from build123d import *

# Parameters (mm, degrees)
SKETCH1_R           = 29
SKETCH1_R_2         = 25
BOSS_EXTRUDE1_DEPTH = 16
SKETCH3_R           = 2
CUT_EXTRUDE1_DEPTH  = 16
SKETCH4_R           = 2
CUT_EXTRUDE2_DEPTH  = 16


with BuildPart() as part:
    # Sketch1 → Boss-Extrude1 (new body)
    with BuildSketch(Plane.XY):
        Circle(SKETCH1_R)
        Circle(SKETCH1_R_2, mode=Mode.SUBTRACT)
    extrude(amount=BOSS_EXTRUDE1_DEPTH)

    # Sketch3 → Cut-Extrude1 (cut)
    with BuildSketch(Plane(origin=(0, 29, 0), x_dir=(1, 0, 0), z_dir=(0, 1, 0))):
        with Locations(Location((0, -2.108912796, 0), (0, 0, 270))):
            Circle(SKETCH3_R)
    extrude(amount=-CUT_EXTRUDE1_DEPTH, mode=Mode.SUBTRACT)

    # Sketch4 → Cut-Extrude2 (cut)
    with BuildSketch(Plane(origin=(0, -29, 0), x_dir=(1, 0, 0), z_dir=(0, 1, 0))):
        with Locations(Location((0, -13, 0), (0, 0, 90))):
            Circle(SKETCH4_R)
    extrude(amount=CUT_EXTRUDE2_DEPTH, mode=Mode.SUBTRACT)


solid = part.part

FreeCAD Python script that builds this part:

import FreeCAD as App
import Part
import Sketcher

V = App.Vector
Q = App.Units.Quantity

doc = App.newDocument("Part")
body = doc.addObject("PartDesign::Body", "Body")

# Sketch on XY plane
sketch1 = doc.addObject("Sketcher::SketchObject", "Sketch")
body.addObject(sketch1)
sketch1.AttachmentSupport = (doc.XY_Plane, [""])
sketch1.MapMode = "FlatFace"
sketch1.addGeometry([
    Part.Circle(V(0, 0, 0), V(0, 0, 1), 29),
    Part.Circle(V(0, 0, 0), V(0, 0, 1), 25),
], False)
sketch1.addConstraint([
    Sketcher.Constraint("Coincident", 0, 3, -1, 1),
    Sketcher.Constraint("Coincident", 1, 3, -1, 1),
    Sketcher.Constraint("Diameter", 0, Q("58 mm")),
    Sketcher.Constraint("Diameter", 1, Q("50 mm")),
])
pad1 = doc.addObject("PartDesign::Pad", "Pad")
body.addObject(pad1)
pad1.Profile = sketch1
pad1.Length = 16

# Sketch on XZ plane
sketch2 = doc.addObject("Sketcher::SketchObject", "Sketch001")
body.addObject(sketch2)
sketch2.AttachmentSupport = (doc.XZ_Plane, [""])
sketch2.MapMode = "FlatFace"
sketch2.AttachmentOffset = App.Placement(V(0, 0, -29), App.Rotation())
sketch2.addGeometry(Part.Circle(V(0, 2.1, 0), V(0, 0, 1), 2), False)
sketch2.addConstraint([
    Sketcher.Constraint("PointOnObject", 0, 3, -2),
    Sketcher.Constraint("Diameter", 0, Q("4 mm")),
    Sketcher.Constraint("DistanceY", -1, 1, 0, 3, Q("2.108913 mm")),
])
pocket1 = doc.addObject("PartDesign::Pocket", "Pocket")
body.addObject(pocket1)
pocket1.Profile = sketch2
pocket1.Length = 16
pocket1.Reversed = True

# Sketch on XZ plane
sketch3 = doc.addObject("Sketcher::SketchObject", "Sketch002")
body.addObject(sketch3)
sketch3.AttachmentSupport = (doc.XZ_Plane, [""])
sketch3.MapMode = "FlatFace"
sketch3.AttachmentOffset = App.Placement(V(0, 0, 29), App.Rotation())
sketch3.addGeometry(Part.Circle(V(0, 13, 0), V(0, 0, 1), 2), False)
sketch3.addConstraint([
    Sketcher.Constraint("PointOnObject", 0, 3, -2),
    Sketcher.Constraint("Diameter", 0, Q("4 mm")),
    Sketcher.Constraint("DistanceY", -1, 1, 0, 3, Q("13 mm")),
])
pocket2 = doc.addObject("PartDesign::Pocket", "Pocket001")
body.addObject(pocket2)
pocket2.Profile = sketch3
pocket2.Length = 16

doc.recompute()
